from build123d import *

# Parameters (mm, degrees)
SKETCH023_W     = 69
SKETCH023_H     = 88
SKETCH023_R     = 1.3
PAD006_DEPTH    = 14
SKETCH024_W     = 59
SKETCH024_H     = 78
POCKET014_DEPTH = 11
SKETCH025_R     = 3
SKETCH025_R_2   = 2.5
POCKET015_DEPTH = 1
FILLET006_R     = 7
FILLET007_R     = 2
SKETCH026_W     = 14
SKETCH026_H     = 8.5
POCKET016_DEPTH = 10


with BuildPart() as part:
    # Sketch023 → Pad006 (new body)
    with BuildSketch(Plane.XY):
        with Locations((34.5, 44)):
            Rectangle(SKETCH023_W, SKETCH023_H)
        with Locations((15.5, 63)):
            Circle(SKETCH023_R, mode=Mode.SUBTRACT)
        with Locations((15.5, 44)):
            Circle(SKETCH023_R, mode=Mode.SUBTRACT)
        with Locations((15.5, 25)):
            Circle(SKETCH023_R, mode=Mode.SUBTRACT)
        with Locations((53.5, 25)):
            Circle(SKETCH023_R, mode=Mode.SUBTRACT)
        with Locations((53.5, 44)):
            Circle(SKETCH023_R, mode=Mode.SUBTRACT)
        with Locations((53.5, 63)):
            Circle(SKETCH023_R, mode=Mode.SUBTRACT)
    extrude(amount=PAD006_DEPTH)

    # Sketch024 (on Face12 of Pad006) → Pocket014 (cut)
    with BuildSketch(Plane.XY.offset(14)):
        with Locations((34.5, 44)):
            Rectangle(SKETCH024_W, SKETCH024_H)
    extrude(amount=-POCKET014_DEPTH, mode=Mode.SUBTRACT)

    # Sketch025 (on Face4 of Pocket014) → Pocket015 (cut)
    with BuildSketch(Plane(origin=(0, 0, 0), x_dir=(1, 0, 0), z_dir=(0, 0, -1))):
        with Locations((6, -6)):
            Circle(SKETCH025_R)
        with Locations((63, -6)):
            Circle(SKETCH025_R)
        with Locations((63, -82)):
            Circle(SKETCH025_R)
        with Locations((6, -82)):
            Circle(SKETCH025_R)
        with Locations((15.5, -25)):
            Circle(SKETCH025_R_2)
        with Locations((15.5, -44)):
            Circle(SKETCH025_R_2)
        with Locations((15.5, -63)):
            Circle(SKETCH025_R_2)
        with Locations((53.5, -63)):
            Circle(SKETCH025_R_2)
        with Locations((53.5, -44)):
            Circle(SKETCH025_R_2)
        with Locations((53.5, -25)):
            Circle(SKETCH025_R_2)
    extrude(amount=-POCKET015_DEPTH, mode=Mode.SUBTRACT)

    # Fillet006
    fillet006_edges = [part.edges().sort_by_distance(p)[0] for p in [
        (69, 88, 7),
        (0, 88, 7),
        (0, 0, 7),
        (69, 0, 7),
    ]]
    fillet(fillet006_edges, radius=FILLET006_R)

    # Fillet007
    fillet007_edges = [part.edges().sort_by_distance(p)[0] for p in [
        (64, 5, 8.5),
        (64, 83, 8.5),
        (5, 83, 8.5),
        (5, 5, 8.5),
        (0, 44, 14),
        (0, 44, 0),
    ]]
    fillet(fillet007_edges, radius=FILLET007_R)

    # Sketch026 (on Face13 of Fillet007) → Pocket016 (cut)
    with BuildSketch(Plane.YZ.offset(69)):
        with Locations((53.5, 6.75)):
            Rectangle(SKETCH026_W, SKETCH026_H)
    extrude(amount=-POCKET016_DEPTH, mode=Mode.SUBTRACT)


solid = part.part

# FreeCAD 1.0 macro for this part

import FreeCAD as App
import Part
import Sketcher
from FreeCAD import Vector
Q = App.Units.Quantity


def edges_at(feature, points):
    """Names of the edges that pass closest to the given points."""
    edges = feature.Shape.Edges
    near = lambda p: min(range(len(edges)), key=lambda i: edges[i].distToShape(Part.Vertex(*p))[0])
    return sorted({f"Edge{near(p) + 1}" for p in points})

doc = App.newDocument("Part")
body = doc.addObject("PartDesign::Body", "Body")

# Sketch on XY plane
sketch1 = body.newObject("Sketcher::SketchObject", "Sketch")
sketch1.AttachmentSupport = (doc.getObject("XY_Plane"), [""])
sketch1.MapMode = "FlatFace"
sketch1.addGeometry(Part.LineSegment(Vector(0, 88, 0), Vector(0, 0, 0)), False)
sketch1.addGeometry(Part.LineSegment(Vector(0, 0, 0), Vector(69, 0, 0)), False)
sketch1.addGeometry(Part.LineSegment(Vector(69, 0, 0), Vector(69, 88, 0)), False)
sketch1.addGeometry(Part.LineSegment(Vector(69, 88, 0), Vector(0, 88, 0)), False)
sketch1.addGeometry(Part.Circle(Vector(15.5, 25, 0), Vector(0, 0, 1), 1.3), False)
sketch1.addGeometry(Part.Circle(Vector(15.5, 44, 0), Vector(0, 0, 1), 1.3), False)
sketch1.addGeometry(Part.Circle(Vector(53.5, 25, 0), Vector(0, 0, 1), 1.3), False)
sketch1.addGeometry(Part.Circle(Vector(53.5, 44, 0), Vector(0, 0, 1), 1.3), False)
sketch1.addGeometry(Part.Circle(Vector(15.5, 63, 0), Vector(0, 0, 1), 1.3), False)
sketch1.addGeometry(Part.Circle(Vector(53.5, 63, 0), Vector(0, 0, 1), 1.3), False)
sketch1.addConstraint(Sketcher.Constraint("Coincident", 0, 2, 1, 1))
sketch1.addConstraint(Sketcher.Constraint("Coincident", 1, 2, 2, 1))
sketch1.addConstraint(Sketcher.Constraint("Coincident", 2, 2, 3, 1))
sketch1.addConstraint(Sketcher.Constraint("Coincident", 3, 2, 0, 1))
sketch1.addConstraint(Sketcher.Constraint("Vertical", 0))
sketch1.addConstraint(Sketcher.Constraint("Horizontal", 1))
sketch1.addConstraint(Sketcher.Constraint("Vertical", 2))
sketch1.addConstraint(Sketcher.Constraint("Horizontal", 3))
sketch1.addConstraint(Sketcher.Constraint("Coincident", 0, 2, -1, 1))
sketch1.addConstraint(Sketcher.Constraint("Equal", 4, 5))
sketch1.addConstraint(Sketcher.Constraint("Equal", 5, 6))
sketch1.addConstraint(Sketcher.Constraint("Equal", 6, 7))
sketch1.addConstraint(Sketcher.Constraint("Equal", 7, 8))
sketch1.addConstraint(Sketcher.Constraint("Equal", 8, 9))
sketch1.addConstraint(Sketcher.Constraint("Horizontal", 4, 3, 6, 3))
sketch1.addConstraint(Sketcher.Constraint("Horizontal", 5, 3, 7, 3))
sketch1.addConstraint(Sketcher.Constraint("Horizontal", 8, 3, 9, 3))
sketch1.addConstraint(Sketcher.Constraint("Vertical", 4, 3, 5, 3))
sketch1.addConstraint(Sketcher.Constraint("Vertical", 6, 3, 7, 3))
sketch1.addConstraint(Sketcher.Constraint("Vertical", 5, 3, 8, 3))
sketch1.addConstraint(Sketcher.Constraint("Vertical", 7, 3, 9, 3))
sketch1.addConstraint(Sketcher.Constraint("Diameter", 4, Q("2.6 mm")))
sketch1.addConstraint(Sketcher.Constraint("DistanceX", 1, 1, 1, 2, Q("69 mm")))
sketch1.addConstraint(Sketcher.Constraint("DistanceY", 0, 2, 0, 1, Q("88 mm")))
sketch1.addConstraint(Sketcher.Constraint("DistanceY", -1, 1, 4, 3, Q("25 mm")))
sketch1.addConstraint(Sketcher.Constraint("DistanceY", -1, 1, 5, 3, Q("44 mm")))
sketch1.addConstraint(Sketcher.Constraint("DistanceY", -1, 1, 8, 3, Q("63 mm")))
sketch1.addConstraint(Sketcher.Constraint("DistanceX", 4, 3, 6, 3, Q("38 mm")))
sketch1.addConstraint(Sketcher.Constraint("DistanceX", -1, 1, 4, 3, Q("15.5 mm")))
pad1 = body.newObject("PartDesign::Pad", "Pad")
pad1.Profile = sketch1
pad1.Length = 14

# Sketch on XY plane
sketch2 = body.newObject("Sketcher::SketchObject", "Sketch001")
sketch2.AttachmentSupport = (doc.getObject("XY_Plane"), [""])
sketch2.MapMode = "FlatFace"
sketch2.AttachmentOffset = App.Placement(Vector(0, 0, 14), App.Rotation())
sketch2.addGeometry(Part.LineSegment(Vector(5, 83, 0), Vector(5, 5, 0)), False)
sketch2.addGeometry(Part.LineSegment(Vector(5, 5, 0), Vector(64, 5, 0)), False)
sketch2.addGeometry(Part.LineSegment(Vector(64, 5, 0), Vector(64, 83, 0)), False)
sketch2.addGeometry(Part.LineSegment(Vector(64, 83, 0), Vector(5, 83, 0)), False)
sketch2.addConstraint(Sketcher.Constraint("Coincident", 0, 2, 1, 1))
sketch2.addConstraint(Sketcher.Constraint("Coincident", 1, 2, 2, 1))
sketch2.addConstraint(Sketcher.Constraint("Coincident", 2, 2, 3, 1))
sketch2.addConstraint(Sketcher.Constraint("Coincident", 3, 2, 0, 1))
sketch2.addConstraint(Sketcher.Constraint("Vertical", 0))
sketch2.addConstraint(Sketcher.Constraint("Horizontal", 1))
sketch2.addConstraint(Sketcher.Constraint("Vertical", 2))
sketch2.addConstraint(Sketcher.Constraint("Horizontal", 3))
sketch2.addConstraint(Sketcher.Constraint("DistanceX", 1, 1, 1, 2, Q("59 mm")))
sketch2.addConstraint(Sketcher.Constraint("DistanceY", 0, 2, 0, 1, Q("78 mm")))
sketch2.addConstraint(Sketcher.Constraint("DistanceX", -1, 1, 0, 2, Q("5 mm")))
sketch2.addConstraint(Sketcher.Constraint("DistanceY", -1, 1, 0, 2, Q("5 mm")))
pocket1 = body.newObject("PartDesign::Pocket", "Pocket")
pocket1.Profile = sketch2
pocket1.Length = 11

# Sketch on XY plane
sketch3 = body.newObject("Sketcher::SketchObject", "Sketch002")
sketch3.AttachmentSupport = (doc.getObject("XY_Plane"), [""])
sketch3.MapMode = "FlatFace"
sketch3.addGeometry(Part.Circle(Vector(6, 6, 0), Vector(0, 0, 1), 3), False)
sketch3.addGeometry(Part.Circle(Vector(63, 6, 0), Vector(0, 0, 1), 3), False)
sketch3.addGeometry(Part.Circle(Vector(63, 82, 0), Vector(0, 0, 1), 3), False)
sketch3.addGeometry(Part.Circle(Vector(6, 82, 0), Vector(0, 0, 1), 3), False)
sketch3.addGeometry(Part.Circle(Vector(15.5, 25, 0), Vector(0, 0, 1), 2.5), False)
sketch3.addGeometry(Part.Circle(Vector(15.5, 44, 0), Vector(0, 0, 1), 2.5), False)
sketch3.addGeometry(Part.Circle(Vector(15.5, 63, 0), Vector(0, 0, 1), 2.5), False)
sketch3.addGeometry(Part.Circle(Vector(53.5, 63, 0), Vector(0, 0, 1), 2.5), False)
sketch3.addGeometry(Part.Circle(Vector(53.5, 44, 0), Vector(0, 0, 1), 2.5), False)
sketch3.addGeometry(Part.Circle(Vector(53.5, 25, 0), Vector(0, 0, 1), 2.5), False)
sketch3.addConstraint(Sketcher.Constraint("Equal", 0, 1))
sketch3.addConstraint(Sketcher.Constraint("Equal", 1, 2))
sketch3.addConstraint(Sketcher.Constraint("Equal", 2, 3))
sketch3.addConstraint(Sketcher.Constraint("Equal", 4, 5))
sketch3.addConstraint(Sketcher.Constraint("Equal", 5, 6))
sketch3.addConstraint(Sketcher.Constraint("Equal", 6, 7))
sketch3.addConstraint(Sketcher.Constraint("Equal", 7, 8))
sketch3.addConstraint(Sketcher.Constraint("Equal", 8, 9))
sketch3.addConstraint(Sketcher.Constraint("Horizontal", 0, 3, 1, 3))
sketch3.addConstraint(Sketcher.Constraint("Horizontal", 2, 3, 3, 3))
sketch3.addConstraint(Sketcher.Constraint("Horizontal", 6, 3, 7, 3))
sketch3.addConstraint(Sketcher.Constraint("Horizontal", 5, 3, 8, 3))
sketch3.addConstraint(Sketcher.Constraint("Horizontal", 4, 3, 9, 3))
sketch3.addConstraint(Sketcher.Constraint("Vertical", 1, 3, 2, 3))
sketch3.addConstraint(Sketcher.Constraint("Vertical", 0, 3, 3, 3))
sketch3.addConstraint(Sketcher.Constraint("Vertical", 4, 3, 5, 3))
sketch3.addConstraint(Sketcher.Constraint("Vertical", 5, 3, 6, 3))
sketch3.addConstraint(Sketcher.Constraint("Vertical", 7, 3, 8, 3))
sketch3.addConstraint(Sketcher.Constraint("Vertical", 8, 3, 9, 3))
sketch3.addConstraint(Sketcher.Constraint("Diameter", 0, Q("6 mm")))
sketch3.addConstraint(Sketcher.Constraint("Diameter", 4, Q("5 mm")))
sketch3.addConstraint(Sketcher.Constraint("DistanceX", -1, 1, 0, 3, Q("6 mm")))
sketch3.addConstraint(Sketcher.Constraint("DistanceY", -1, 1, 0, 3, Q("6 mm")))
sketch3.addConstraint(Sketcher.Constraint("DistanceX", -1, 1, 1, 3, Q("63 mm")))
sketch3.addConstraint(Sketcher.Constraint("DistanceY", -1, 1, 2, 3, Q("82 mm")))
sketch3.addConstraint(Sketcher.Constraint("DistanceY", -1, 1, 4, 3, Q("25 mm")))
sketch3.addConstraint(Sketcher.Constraint("DistanceY", -1, 1, 5, 3, Q("44 mm")))
sketch3.addConstraint(Sketcher.Constraint("DistanceY", -1, 1, 6, 3, Q("63 mm")))
sketch3.addConstraint(Sketcher.Constraint("DistanceX", 6, 3, 7, 3, Q("38 mm")))
sketch3.addConstraint(Sketcher.Constraint("DistanceX", -1, 1, 4, 3, Q("15.5 mm")))
pocket2 = body.newObject("PartDesign::Pocket", "Pocket001")
pocket2.Profile = sketch3
pocket2.Length = 1
pocket2.Reversed = True
doc.recompute()

fillet = body.newObject("PartDesign::Fillet", "Fillet")
fillet.Base = (pocket2, edges_at(pocket2, [
    (69, 88, 7),
    (0, 88, 7),
    (0, 0, 7),
    (69, 0, 7),
]))
fillet.Radius = 7
doc.recompute()

fillet2 = body.newObject("PartDesign::Fillet", "Fillet001")
fillet2.Base = (fillet, edges_at(fillet, [
    (64, 5, 8.5),
    (64, 83, 8.5),
    (5, 83, 8.5),
    (5, 5, 8.5),
    (0, 44, 14),
    (0, 44, 0),
]))
fillet2.Radius = 2

# Sketch on YZ plane
sketch4 = body.newObject("Sketcher::SketchObject", "Sketch003")
sketch4.AttachmentSupport = (doc.getObject("YZ_Plane"), [""])
sketch4.MapMode = "FlatFace"
sketch4.AttachmentOffset = App.Placement(Vector(0, 0, 69), App.Rotation())
sketch4.addGeometry(Part.LineSegment(Vector(46.5, 11, 0), Vector(46.5, 2.5, 0)), False)
sketch4.addGeometry(Part.LineSegment(Vector(46.5, 2.5, 0), Vector(60.5, 2.5, 0)), False)
sketch4.addGeometry(Part.LineSegment(Vector(60.5, 2.5, 0), Vector(60.5, 11, 0)), False)
sketch4.addGeometry(Part.LineSegment(Vector(60.5, 11, 0), Vector(46.5, 11, 0)), False)
sketch4.addConstraint(Sketcher.Constraint("Coincident", 0, 2, 1, 1))
sketch4.addConstraint(Sketcher.Constraint("Coincident", 1, 2, 2, 1))
sketch4.addConstraint(Sketcher.Constraint("Coincident", 2, 2, 3, 1))
sketch4.addConstraint(Sketcher.Constraint("Coincident", 3, 2, 0, 1))
sketch4.addConstraint(Sketcher.Constraint("Vertical", 0))
sketch4.addConstraint(Sketcher.Constraint("Horizontal", 1))
sketch4.addConstraint(Sketcher.Constraint("Vertical", 2))
sketch4.addConstraint(Sketcher.Constraint("Horizontal", 3))
sketch4.addConstraint(Sketcher.Constraint("DistanceX", 1, 1, 1, 2, Q("14 mm")))
sketch4.addConstraint(Sketcher.Constraint("DistanceY", 0, 2, 0, 1, Q("8.5 mm")))
sketch4.addConstraint(Sketcher.Constraint("DistanceY", -1, 1, 2, 2, Q("11 mm")))
sketch4.addConstraint(Sketcher.Constraint("DistanceX", -1, 1, 0, 2, Q("46.5 mm")))
pocket3 = body.newObject("PartDesign::Pocket", "Pocket002")
pocket3.Profile = sketch4
pocket3.Length = 10

doc.recompute()
